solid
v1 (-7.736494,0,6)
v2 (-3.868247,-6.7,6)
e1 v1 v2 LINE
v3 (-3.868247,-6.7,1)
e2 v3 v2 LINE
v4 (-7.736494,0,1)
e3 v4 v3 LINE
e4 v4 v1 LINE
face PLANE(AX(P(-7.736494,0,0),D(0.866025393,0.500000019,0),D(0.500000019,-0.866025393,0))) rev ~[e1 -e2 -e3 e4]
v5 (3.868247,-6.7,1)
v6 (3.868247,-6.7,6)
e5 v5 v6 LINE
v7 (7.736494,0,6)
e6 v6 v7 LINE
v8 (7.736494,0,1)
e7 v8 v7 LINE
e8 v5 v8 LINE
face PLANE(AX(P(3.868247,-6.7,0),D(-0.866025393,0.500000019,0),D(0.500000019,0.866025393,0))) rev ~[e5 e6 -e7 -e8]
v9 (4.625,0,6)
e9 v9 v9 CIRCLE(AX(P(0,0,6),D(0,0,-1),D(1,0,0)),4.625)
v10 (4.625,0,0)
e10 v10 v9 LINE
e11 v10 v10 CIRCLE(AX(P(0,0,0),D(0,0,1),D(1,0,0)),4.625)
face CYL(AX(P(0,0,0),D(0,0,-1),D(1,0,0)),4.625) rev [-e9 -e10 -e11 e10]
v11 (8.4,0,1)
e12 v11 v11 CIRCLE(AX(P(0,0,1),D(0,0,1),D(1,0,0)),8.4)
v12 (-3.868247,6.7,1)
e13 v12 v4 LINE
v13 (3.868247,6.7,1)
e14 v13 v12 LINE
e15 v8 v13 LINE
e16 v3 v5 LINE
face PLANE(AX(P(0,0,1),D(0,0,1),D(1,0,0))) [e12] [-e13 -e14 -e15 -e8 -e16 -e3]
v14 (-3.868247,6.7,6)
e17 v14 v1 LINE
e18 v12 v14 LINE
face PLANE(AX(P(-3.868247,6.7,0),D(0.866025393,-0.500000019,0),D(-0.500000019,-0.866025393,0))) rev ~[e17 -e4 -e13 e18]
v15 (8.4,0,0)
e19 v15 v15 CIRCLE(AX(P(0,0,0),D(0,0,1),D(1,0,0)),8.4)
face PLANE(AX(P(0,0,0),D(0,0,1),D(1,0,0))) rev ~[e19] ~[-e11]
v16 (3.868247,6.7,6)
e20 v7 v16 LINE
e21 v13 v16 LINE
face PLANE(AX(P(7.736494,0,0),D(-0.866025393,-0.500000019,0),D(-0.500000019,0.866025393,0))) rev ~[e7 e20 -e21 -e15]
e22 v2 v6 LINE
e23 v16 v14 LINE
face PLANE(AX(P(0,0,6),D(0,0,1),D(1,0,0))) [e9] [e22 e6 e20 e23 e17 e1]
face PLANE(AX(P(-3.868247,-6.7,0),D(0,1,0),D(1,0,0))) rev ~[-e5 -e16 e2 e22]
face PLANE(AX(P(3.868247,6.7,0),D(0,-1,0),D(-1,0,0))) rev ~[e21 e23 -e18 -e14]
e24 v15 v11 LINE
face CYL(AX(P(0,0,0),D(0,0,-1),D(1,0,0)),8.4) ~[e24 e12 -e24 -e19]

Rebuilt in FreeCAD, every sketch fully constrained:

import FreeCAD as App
import Part
import Sketcher
Q = App.Units.Quantity


def add_polygon(sketch, points):
    """Adds a closed chain of lines whose ends are joined by coincident constraints."""
    first, n = sketch.GeometryCount, len(points)
    for a, b in zip(points, points[1:] + points[:1]):
        sketch.addGeometry(Part.LineSegment(App.Vector(*a, 0), App.Vector(*b, 0)), False)
    for i in range(n):
        sketch.addConstraint(Sketcher.Constraint("Coincident", first + i, 2, first + (i + 1) % n, 1))

doc = App.newDocument("Part")
params = doc.addObject("Spreadsheet::Sheet", "Params")
for row, (alias, value) in enumerate([
    ("pad1_length", "6 mm"),
    ("sketch2_diameter", "16.8 mm"),
    ("pad2_length", "1 mm"),
    ("sketch3_diameter", "9.25 mm"),
], start=1):
    params.set(f"A{row}", alias)
    params.set(f"B{row}", "=" + value)
    params.setAlias(f"B{row}", alias)

body = doc.addObject("PartDesign::Body", "Body")

# Sketch on XY plane
sketch1 = doc.addObject("Sketcher::SketchObject", "Sketch")
body.addObject(sketch1)
sketch1.AttachmentSupport = (doc.XY_Plane, [""])
sketch1.MapMode = "FlatFace"
add_polygon(sketch1, [(7.736494, 0), (3.868247, 6.7), (-3.868247, 6.7), (-7.736494, 0), (-3.868247, -6.7), (3.868247, -6.7)])  # lines 0-5
sketch1.addConstraint([
    Sketcher.Constraint("Horizontal", 1),
    Sketcher.Constraint("Horizontal", 4),
    Sketcher.Constraint("Symmetric", 0, 2, 3, 2, -1, 1),
    Sketcher.Constraint("Symmetric", 2, 2, 5, 2, -1, 1),
    Sketcher.Constraint("PointOnObject", 2, 2, -1),
    Sketcher.Constraint("Parallel", 2, 5),
    Sketcher.Constraint("Vertical", 1, 2, 3, 2),
    Sketcher.Constraint("Angle", 0, Q("120.000001 deg")),
    Sketcher.Constraint("DistanceY", -1, 1, 0, 2, Q("6.7 mm")),
    Sketcher.Constraint("DistanceX", 1, 2, 1, 1, Q("7.736494 mm")),
])
pad1 = doc.addObject("PartDesign::Pad", "Pad")
body.addObject(pad1)
pad1.Profile = sketch1
pad1.setExpression("Length", "Params.pad1_length")

# Sketch on XY plane
sketch2 = doc.addObject("Sketcher::SketchObject", "Sketch001")
body.addObject(sketch2)
sketch2.AttachmentSupport = (doc.XY_Plane, [""])
sketch2.MapMode = "FlatFace"
sketch2.addGeometry(Part.Circle(App.Vector(0, 0, 0), App.Vector(0, 0, 1), 8.4), False)
sketch2.addConstraint([
    Sketcher.Constraint("Coincident", 0, 3, -1, 1),
    Sketcher.Constraint("Diameter", 0, Q("16.8 mm")),
])
sketch2.setExpression("Constraints[1]", "Params.sketch2_diameter")
pad2 = doc.addObject("PartDesign::Pad", "Pad001")
body.addObject(pad2)
pad2.Profile = sketch2
pad2.setExpression("Length", "Params.pad2_length")

# Sketch on XY plane
sketch3 = doc.addObject("Sketcher::SketchObject", "Sketch002")
body.addObject(sketch3)
sketch3.AttachmentSupport = (doc.XY_Plane, [""])
sketch3.MapMode = "FlatFace"
sketch3.addGeometry(Part.Circle(App.Vector(0, 0, 0), App.Vector(0, 0, 1), 4.625), False)
sketch3.addConstraint([
    Sketcher.Constraint("Coincident", 0, 3, -1, 1),
    Sketcher.Constraint("Diameter", 0, Q("9.25 mm")),
])
sketch3.setExpression("Constraints[1]", "Params.sketch3_diameter")
pocket1 = doc.addObject("PartDesign::Pocket", "Pocket")
body.addObject(pocket1)
pocket1.Profile = sketch3
pocket1.Type = "ThroughAll"
pocket1.Midplane = True

doc.recompute()
